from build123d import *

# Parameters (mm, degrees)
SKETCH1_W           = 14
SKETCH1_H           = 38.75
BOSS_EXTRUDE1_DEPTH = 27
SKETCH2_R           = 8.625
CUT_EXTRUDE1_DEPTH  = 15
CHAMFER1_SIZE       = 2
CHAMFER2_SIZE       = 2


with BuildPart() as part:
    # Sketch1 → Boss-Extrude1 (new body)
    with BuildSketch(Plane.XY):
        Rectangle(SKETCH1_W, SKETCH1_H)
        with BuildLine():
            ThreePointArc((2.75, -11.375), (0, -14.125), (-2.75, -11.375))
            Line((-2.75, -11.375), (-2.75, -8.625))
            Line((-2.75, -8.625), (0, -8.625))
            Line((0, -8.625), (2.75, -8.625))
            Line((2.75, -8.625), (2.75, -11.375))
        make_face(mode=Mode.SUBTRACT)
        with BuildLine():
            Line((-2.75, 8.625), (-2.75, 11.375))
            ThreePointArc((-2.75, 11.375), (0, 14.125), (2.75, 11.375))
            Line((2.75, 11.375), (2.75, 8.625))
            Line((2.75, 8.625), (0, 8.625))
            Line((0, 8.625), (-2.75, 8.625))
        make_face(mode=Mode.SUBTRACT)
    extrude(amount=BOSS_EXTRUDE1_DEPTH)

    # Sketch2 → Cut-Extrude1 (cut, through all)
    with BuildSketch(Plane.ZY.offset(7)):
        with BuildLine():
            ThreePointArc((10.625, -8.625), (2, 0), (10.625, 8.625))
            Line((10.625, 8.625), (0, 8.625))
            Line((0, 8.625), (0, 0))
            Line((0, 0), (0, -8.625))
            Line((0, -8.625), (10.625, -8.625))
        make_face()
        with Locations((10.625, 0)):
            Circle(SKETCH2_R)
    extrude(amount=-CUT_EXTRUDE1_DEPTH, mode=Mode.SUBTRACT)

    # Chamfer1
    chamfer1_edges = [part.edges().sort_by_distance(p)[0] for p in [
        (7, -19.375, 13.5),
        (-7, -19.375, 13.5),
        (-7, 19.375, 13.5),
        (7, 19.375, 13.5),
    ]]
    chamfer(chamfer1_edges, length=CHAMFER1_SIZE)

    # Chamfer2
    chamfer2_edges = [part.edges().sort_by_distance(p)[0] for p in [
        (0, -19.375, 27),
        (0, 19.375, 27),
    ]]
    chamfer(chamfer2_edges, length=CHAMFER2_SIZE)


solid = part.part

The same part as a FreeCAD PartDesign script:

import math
import FreeCAD as App
import Part
import Sketcher


def edges_at(feature, points):
    """Names of the edges that pass closest to the given points."""
    edges = feature.Shape.Edges
    near = lambda p: min(range(len(edges)), key=lambda i: edges[i].distToShape(Part.Vertex(*p))[0])
    return sorted({f"Edge{near(p) + 1}" for p in points})


def add_polygon(sketch, points):
    """Adds a closed chain of lines whose ends are joined by coincident constraints."""
    first, n = sketch.GeometryCount, len(points)
    for a, b in zip(points, points[1:] + points[:1]):
        sketch.addGeometry(Part.LineSegment(App.Vector(*a, 0), App.Vector(*b, 0)), False)
    for i in range(n):
        sketch.addConstraint(Sketcher.Constraint("Coincident", first + i, 2, first + (i + 1) % n, 1))

doc = App.newDocument("Part")
params = doc.addObject("Spreadsheet::Sheet", "Params")
for row, (alias, value) in enumerate([
    ("sketch1_width", "14 mm"),
    ("sketch1_radius", "2.75 mm"),
    ("sketch1_height", "38.75 mm"),
    ("pad1_length", "27 mm"),
    ("chamfer_size", "2 mm"),
    ("chamfer2_size", "2 mm"),
], start=1):
    params.set(f"A{row}", alias)
    params.set(f"B{row}", "=" + value)
    params.setAlias(f"B{row}", alias)

body = doc.addObject("PartDesign::Body", "Body")

# Sketch on XY plane
sketch1 = body.newObject("Sketcher::SketchObject", "Sketch")
sketch1.AttachmentSupport = (doc.getObject("XY_Plane"), [""])
sketch1.MapMode = "FlatFace"
add_polygon(sketch1, [(-7, 19.375), (-7, -19.375), (7, -19.375), (7, 19.375)])  # lines 0-3
sketch1.addGeometry(Part.LineSegment(App.Vector(2.75, -8.625, 0), App.Vector(2.75, -11.375, 0)), False)  # 4
sketch1.addGeometry(Part.ArcOfCircle(Part.Circle(App.Vector(0, -11.375, 0), App.Vector(0, 0, 1), 2.75), math.radians(180), math.radians(360)), False)  # 5
sketch1.addGeometry(Part.LineSegment(App.Vector(-2.75, -11.375, 0), App.Vector(-2.75, -8.625, 0)), False)  # 6
sketch1.addGeometry(Part.LineSegment(App.Vector(-2.75, -8.625, 0), App.Vector(2.75, -8.625, 0)), False)  # 7
sketch1.addGeometry(Part.LineSegment(App.Vector(2.75, 8.625, 0), App.Vector(-2.75, 8.625, 0)), False)  # 8
sketch1.addGeometry(Part.LineSegment(App.Vector(-2.75, 8.625, 0), App.Vector(-2.75, 11.375, 0)), False)  # 9
sketch1.addGeometry(Part.ArcOfCircle(Part.Circle(App.Vector(0, 11.375, 0), App.Vector(0, 0, 1), 2.75), math.radians(0), math.radians(180)), False)  # 10
sketch1.addGeometry(Part.LineSegment(App.Vector(2.75, 11.375, 0), App.Vector(2.75, 8.625, 0)), False)  # 11
sketch1.addConstraint([
    Sketcher.Constraint("Tangent", 4, 2, 5, 2),
    Sketcher.Constraint("Tangent", 5, 1, 6, 1),
    Sketcher.Constraint("Coincident", 6, 2, 7, 1),
    Sketcher.Constraint("Coincident", 7, 2, 4, 1),
    Sketcher.Constraint("Coincident", 8, 2, 9, 1),
    Sketcher.Constraint("Tangent", 9, 2, 10, 2),
    Sketcher.Constraint("Tangent", 10, 1, 11, 1),
    Sketcher.Constraint("Coincident", 11, 2, 8, 1),
    Sketcher.Constraint("Vertical", 0),
    Sketcher.Constraint("Horizontal", 1),
    Sketcher.Constraint("Vertical", 2),
    Sketcher.Constraint("Horizontal", 3),
    Sketcher.Constraint("Vertical", 4),
    Sketcher.Constraint("Vertical", 6),
    Sketcher.Constraint("Horizontal", 7),
    Sketcher.Constraint("Horizontal", 8),
    Sketcher.Constraint("Vertical", 9),
    Sketcher.Constraint("Vertical", 11),
    Sketcher.Constraint("Equal", 5, 10),
    Sketcher.Constraint("Symmetric", 5, 3, 10, 3, -1, 1),
    Sketcher.Constraint("Symmetric", 0, 2, 2, 2, -1, 1),
    Sketcher.Constraint("Symmetric", 6, 2, 8, 2, -1),
    Sketcher.Constraint("DistanceX", 1, 1, 1, 2, 14.0),
    Sketcher.Constraint("Radius", 5, 2.75),
    Sketcher.Constraint("DistanceY", 0, 2, 5, 3, 8.0),
    Sketcher.Constraint("DistanceY", 6, 2, 9, 2, 20.0),
    Sketcher.Constraint("DistanceY", 0, 2, 0, 1, 38.75),
])
sketch1.setExpression("Constraints[26]", "Params.sketch1_width")
sketch1.setExpression("Constraints[27]", "Params.sketch1_radius")
sketch1.setExpression("Constraints[30]", "Params.sketch1_height")
pad1 = body.newObject("PartDesign::Pad", "Pad")
pad1.Profile = sketch1
pad1.setExpression("Length", "Params.pad1_length")

# Sketch on YZ plane
sketch2 = body.newObject("Sketcher::SketchObject", "Sketch001")
sketch2.AttachmentSupport = (doc.getObject("YZ_Plane"), [""])
sketch2.MapMode = "FlatFace"
sketch2.AttachmentOffset = App.Placement(App.Vector(0, 0, -7), App.Rotation())
sketch2.addGeometry([
    Part.LineSegment(App.Vector(8.625, 10.625, 0), App.Vector(8.625, 0, 0)),
    Part.LineSegment(App.Vector(8.625, 0, 0), App.Vector(-8.625, 0, 0)),
    Part.LineSegment(App.Vector(-8.625, 0, 0), App.Vector(-8.625, 10.625, 0)),
    Part.ArcOfCircle(Part.Circle(App.Vector(0, 10.625, 0), App.Vector(0, 0, 1), 8.625), math.radians(0), math.radians(180)),
], False)
sketch2.addConstraint([
    Sketcher.Constraint("Coincident", 0, 2, 1, 1),
    Sketcher.Constraint("Coincident", 1, 2, 2, 1),
    Sketcher.Constraint("Tangent", 2, 2, 3, 2),
    Sketcher.Constraint("Tangent", 3, 1, 0, 1),
    Sketcher.Constraint("Vertical", 0),
    Sketcher.Constraint("Horizontal", 1),
    Sketcher.Constraint("Vertical", 2),
    Sketcher.Constraint("Symmetric", 0, 2, 1, 2, -1, 1),
    Sketcher.Constraint("Radius", 3, 8.625),
    Sketcher.Constraint("DistanceY", 0, 2, 0, 1, 10.625),
])
pocket1 = body.newObject("PartDesign::Pocket", "Pocket")
pocket1.Profile = sketch2
pocket1.Type = "ThroughAll"
pocket1.Reversed = True
doc.recompute()

chamfer = body.newObject("PartDesign::Chamfer", "Chamfer")
chamfer.Base = (pocket1, edges_at(pocket1, [
    (7, -19.375, 13.5),
    (-7, -19.375, 13.5),
    (-7, 19.375, 13.5),
    (7, 19.375, 13.5),
]))
chamfer.setExpression("Size", "Params.chamfer_size")
doc.recompute()

chamfer2 = body.newObject("PartDesign::Chamfer", "Chamfer001")
chamfer2.Base = (chamfer, edges_at(chamfer, [(0, -19.375, 27), (0, 19.375, 27)]))
chamfer2.setExpression("Size", "Params.chamfer2_size")

doc.recompute()
